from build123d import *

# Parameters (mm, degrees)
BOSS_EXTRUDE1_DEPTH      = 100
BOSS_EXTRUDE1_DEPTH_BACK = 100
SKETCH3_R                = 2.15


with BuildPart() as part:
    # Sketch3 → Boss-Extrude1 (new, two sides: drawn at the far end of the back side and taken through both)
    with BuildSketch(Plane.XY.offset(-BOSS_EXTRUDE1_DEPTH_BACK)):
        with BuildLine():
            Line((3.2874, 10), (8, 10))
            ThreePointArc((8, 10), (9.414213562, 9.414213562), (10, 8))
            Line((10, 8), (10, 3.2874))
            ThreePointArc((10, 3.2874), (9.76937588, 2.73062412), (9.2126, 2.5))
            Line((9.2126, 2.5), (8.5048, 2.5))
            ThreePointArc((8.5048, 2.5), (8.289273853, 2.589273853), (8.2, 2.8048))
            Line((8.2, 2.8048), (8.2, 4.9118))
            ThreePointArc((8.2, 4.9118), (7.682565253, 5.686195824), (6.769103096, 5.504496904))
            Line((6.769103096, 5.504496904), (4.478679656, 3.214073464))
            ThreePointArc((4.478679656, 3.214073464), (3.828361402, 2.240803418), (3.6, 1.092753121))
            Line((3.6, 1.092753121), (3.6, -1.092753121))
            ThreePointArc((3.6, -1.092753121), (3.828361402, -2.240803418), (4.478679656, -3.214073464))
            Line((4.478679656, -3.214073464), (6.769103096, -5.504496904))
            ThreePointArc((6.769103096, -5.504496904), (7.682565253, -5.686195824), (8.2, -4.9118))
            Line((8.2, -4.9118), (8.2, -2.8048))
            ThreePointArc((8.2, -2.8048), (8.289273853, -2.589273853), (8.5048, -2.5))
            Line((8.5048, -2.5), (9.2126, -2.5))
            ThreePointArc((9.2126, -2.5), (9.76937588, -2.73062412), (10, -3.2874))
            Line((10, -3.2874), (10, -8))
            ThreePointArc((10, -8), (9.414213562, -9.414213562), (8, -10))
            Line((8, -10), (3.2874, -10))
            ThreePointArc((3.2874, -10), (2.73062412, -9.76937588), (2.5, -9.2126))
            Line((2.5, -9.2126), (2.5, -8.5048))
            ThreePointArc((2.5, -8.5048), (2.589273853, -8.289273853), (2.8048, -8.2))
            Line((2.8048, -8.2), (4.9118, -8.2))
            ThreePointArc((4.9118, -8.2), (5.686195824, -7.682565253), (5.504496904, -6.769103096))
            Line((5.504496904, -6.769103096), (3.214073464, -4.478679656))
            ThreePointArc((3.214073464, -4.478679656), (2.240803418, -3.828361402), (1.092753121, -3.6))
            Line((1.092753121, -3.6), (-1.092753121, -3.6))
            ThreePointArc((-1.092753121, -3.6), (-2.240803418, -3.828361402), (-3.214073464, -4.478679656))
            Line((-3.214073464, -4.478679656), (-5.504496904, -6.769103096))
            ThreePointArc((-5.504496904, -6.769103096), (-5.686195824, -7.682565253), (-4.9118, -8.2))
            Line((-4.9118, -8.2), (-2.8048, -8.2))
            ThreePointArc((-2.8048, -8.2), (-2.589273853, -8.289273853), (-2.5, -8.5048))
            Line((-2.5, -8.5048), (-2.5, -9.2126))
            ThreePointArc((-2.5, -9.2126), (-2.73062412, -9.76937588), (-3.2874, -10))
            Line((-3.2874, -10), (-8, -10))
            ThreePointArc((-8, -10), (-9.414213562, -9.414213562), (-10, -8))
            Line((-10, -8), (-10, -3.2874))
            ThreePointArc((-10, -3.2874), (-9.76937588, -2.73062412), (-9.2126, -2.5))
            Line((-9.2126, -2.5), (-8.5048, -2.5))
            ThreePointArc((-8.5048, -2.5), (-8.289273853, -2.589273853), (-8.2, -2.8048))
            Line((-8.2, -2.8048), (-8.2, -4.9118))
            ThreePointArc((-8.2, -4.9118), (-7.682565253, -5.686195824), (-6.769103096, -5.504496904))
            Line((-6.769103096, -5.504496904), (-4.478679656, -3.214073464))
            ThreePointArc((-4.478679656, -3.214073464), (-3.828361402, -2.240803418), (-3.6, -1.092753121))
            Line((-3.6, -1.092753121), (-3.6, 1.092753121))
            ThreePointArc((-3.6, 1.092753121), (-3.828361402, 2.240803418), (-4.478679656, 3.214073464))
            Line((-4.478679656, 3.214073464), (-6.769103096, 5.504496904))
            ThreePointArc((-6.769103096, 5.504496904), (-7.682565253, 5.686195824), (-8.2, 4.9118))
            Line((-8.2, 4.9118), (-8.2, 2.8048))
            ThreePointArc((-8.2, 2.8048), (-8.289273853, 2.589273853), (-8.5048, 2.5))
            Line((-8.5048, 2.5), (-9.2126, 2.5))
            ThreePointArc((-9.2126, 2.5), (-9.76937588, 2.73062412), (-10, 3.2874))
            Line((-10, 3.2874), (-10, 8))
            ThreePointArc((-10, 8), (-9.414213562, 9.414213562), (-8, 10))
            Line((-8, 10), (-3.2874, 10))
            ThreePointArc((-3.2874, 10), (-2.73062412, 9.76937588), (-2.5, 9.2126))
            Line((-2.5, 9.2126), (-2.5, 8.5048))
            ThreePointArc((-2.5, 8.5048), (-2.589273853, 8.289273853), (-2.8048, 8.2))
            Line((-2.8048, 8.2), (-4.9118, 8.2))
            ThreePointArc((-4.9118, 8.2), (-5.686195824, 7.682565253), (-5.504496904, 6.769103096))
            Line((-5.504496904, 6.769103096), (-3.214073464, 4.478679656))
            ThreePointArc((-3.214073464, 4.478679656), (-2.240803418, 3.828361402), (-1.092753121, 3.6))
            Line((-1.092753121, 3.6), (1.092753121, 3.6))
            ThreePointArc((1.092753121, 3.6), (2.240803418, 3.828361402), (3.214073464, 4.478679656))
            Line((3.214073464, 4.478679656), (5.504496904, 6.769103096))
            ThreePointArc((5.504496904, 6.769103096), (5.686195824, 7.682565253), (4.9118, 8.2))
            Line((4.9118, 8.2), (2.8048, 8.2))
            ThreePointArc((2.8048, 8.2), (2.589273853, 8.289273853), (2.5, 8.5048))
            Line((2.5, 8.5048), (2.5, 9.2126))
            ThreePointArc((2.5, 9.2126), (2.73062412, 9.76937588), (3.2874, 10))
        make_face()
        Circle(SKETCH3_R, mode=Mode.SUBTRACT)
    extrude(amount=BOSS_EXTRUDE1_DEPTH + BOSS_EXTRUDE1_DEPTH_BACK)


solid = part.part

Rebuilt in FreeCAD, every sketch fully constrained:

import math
import FreeCAD as App
import Part
import Sketcher
from FreeCAD import Vector

doc = App.newDocument("Part")
body = doc.addObject("PartDesign::Body", "Body")

# Sketch on XY plane
sketch1 = doc.addObject("Sketcher::SketchObject", "Sketch")
body.addObject(sketch1)
sketch1.AttachmentSupport = (doc.XY_Plane, [""])
sketch1.MapMode = "FlatFace"
sketch1.addGeometry(Part.LineSegment(Vector(8, 10, 0), Vector(3.29, 10, 0)), False)
sketch1.addGeometry(Part.ArcOfCircle(Part.Circle(Vector(3.29, 9.21, 0), Vector(0, 0, 1), 0.79), math.radians(90), math.radians(180)), False)
sketch1.addGeometry(Part.LineSegment(Vector(2.5, 9.21, 0), Vector(2.5, 8.5, 0)), False)
sketch1.addGeometry(Part.ArcOfCircle(Part.Circle(Vector(2.8, 8.5, 0), Vector(0, 0, 1), 0.3), math.radians(180), math.radians(270)), False)
sketch1.addGeometry(Part.LineSegment(Vector(2.8, 8.2, 0), Vector(4.91, 8.2, 0)), False)
sketch1.addGeometry(Part.ArcOfCircle(Part.Circle(Vector(4.91, 7.36, 0), Vector(0, 0, 1), 0.84), math.radians(-45), math.radians(90)), False)
sketch1.addGeometry(Part.LineSegment(Vector(5.5, 6.77, 0), Vector(3.21, 4.48, 0)), False)
sketch1.addGeometry(Part.ArcOfCircle(Part.Circle(Vector(1.09, 6.6, 0), Vector(0, 0, 1), 3), math.radians(-90), math.radians(-45)), False)
sketch1.addGeometry(Part.LineSegment(Vector(1.09, 3.6, 0), Vector(-1.09, 3.6, 0)), False)
sketch1.addGeometry(Part.ArcOfCircle(Part.Circle(Vector(-1.09, 6.6, 0), Vector(0, 0, 1), 3), math.radians(-135), math.radians(-90)), False)
sketch1.addGeometry(Part.LineSegment(Vector(-3.21, 4.48, 0), Vector(-5.5, 6.77, 0)), False)
sketch1.addGeometry(Part.ArcOfCircle(Part.Circle(Vector(-4.91, 7.36, 0), Vector(0, 0, 1), 0.84), math.radians(90), math.radians(225)), False)
sketch1.addGeometry(Part.LineSegment(Vector(-4.91, 8.2, 0), Vector(-2.8, 8.2, 0)), False)
sketch1.addGeometry(Part.ArcOfCircle(Part.Circle(Vector(-2.8, 8.5, 0), Vector(0, 0, 1), 0.3), math.radians(-90), math.radians(0)), False)
sketch1.addGeometry(Part.LineSegment(Vector(-2.5, 8.5, 0), Vector(-2.5, 9.21, 0)), False)
sketch1.addGeometry(Part.ArcOfCircle(Part.Circle(Vector(-3.29, 9.21, 0), Vector(0, 0, 1), 0.79), math.radians(0), math.radians(90)), False)
sketch1.addGeometry(Part.LineSegment(Vector(-3.29, 10, 0), Vector(-8, 10, 0)), False)
sketch1.addGeometry(Part.ArcOfCircle(Part.Circle(Vector(-8, 8, 0), Vector(0, 0, 1), 2), math.radians(90), math.radians(180)), False)
sketch1.addGeometry(Part.LineSegment(Vector(-10, 8, 0), Vector(-10, 3.29, 0)), False)
sketch1.addGeometry(Part.ArcOfCircle(Part.Circle(Vector(-9.21, 3.29, 0), Vector(0, 0, 1), 0.79), math.radians(180), math.radians(270)), False)
sketch1.addGeometry(Part.LineSegment(Vector(-9.21, 2.5, 0), Vector(-8.5, 2.5, 0)), False)
sketch1.addGeometry(Part.ArcOfCircle(Part.Circle(Vector(-8.5, 2.8, 0), Vector(0, 0, 1), 0.3), math.radians(-90), math.radians(0)), False)
sketch1.addGeometry(Part.LineSegment(Vector(-8.2, 2.8, 0), Vector(-8.2, 4.91, 0)), False)
sketch1.addGeometry(Part.ArcOfCircle(Part.Circle(Vector(-7.36, 4.91, 0), Vector(0, 0, 1), 0.84), math.radians(45), math.radians(180)), False)
sketch1.addGeometry(Part.LineSegment(Vector(-6.77, 5.5, 0), Vector(-4.48, 3.21, 0)), False)
sketch1.addGeometry(Part.ArcOfCircle(Part.Circle(Vector(-6.6, 1.09, 0), Vector(0, 0, 1), 3), math.radians(0), math.radians(45)), False)
sketch1.addGeometry(Part.LineSegment(Vector(-3.6, 1.09, 0), Vector(-3.6, -1.09, 0)), False)
sketch1.addGeometry(Part.ArcOfCircle(Part.Circle(Vector(-6.6, -1.09, 0), Vector(0, 0, 1), 3), math.radians(-45), math.radians(0)), False)
sketch1.addGeometry(Part.LineSegment(Vector(-4.48, -3.21, 0), Vector(-6.77, -5.5, 0)), False)
sketch1.addGeometry(Part.ArcOfCircle(Part.Circle(Vector(-7.36, -4.91, 0), Vector(0, 0, 1), 0.84), math.radians(180), math.radians(315)), False)
sketch1.addGeometry(Part.LineSegment(Vector(-8.2, -4.91, 0), Vector(-8.2, -2.8, 0)), False)
sketch1.addGeometry(Part.ArcOfCircle(Part.Circle(Vector(-8.5, -2.8, 0), Vector(0, 0, 1), 0.3), math.radians(0), math.radians(90)), False)
sketch1.addGeometry(Part.LineSegment(Vector(-8.5, -2.5, 0), Vector(-9.21, -2.5, 0)), False)
sketch1.addGeometry(Part.ArcOfCircle(Part.Circle(Vector(-9.21, -3.29, 0), Vector(0, 0, 1), 0.79), math.radians(90), math.radians(180)), False)
sketch1.addGeometry(Part.LineSegment(Vector(-10, -3.29, 0), Vector(-10, -8, 0)), False)
sketch1.addGeometry(Part.ArcOfCircle(Part.Circle(Vector(-8, -8, 0), Vector(0, 0, 1), 2), math.radians(-180), math.radians(-90)), False)
sketch1.addGeometry(Part.LineSegment(Vector(-8, -10, 0), Vector(-3.29, -10, 0)), False)
sketch1.addGeometry(Part.ArcOfCircle(Part.Circle(Vector(-3.29, -9.21, 0), Vector(0, 0, 1), 0.79), math.radians(-90), math.radians(0)), False)
sketch1.addGeometry(Part.LineSegment(Vector(-2.5, -9.21, 0), Vector(-2.5, -8.5, 0)), False)
sketch1.addGeometry(Part.ArcOfCircle(Part.Circle(Vector(-2.8, -8.5, 0), Vector(0, 0, 1), 0.3), math.radians(0), math.radians(90)), False)
sketch1.addGeometry(Part.LineSegment(Vector(-2.8, -8.2, 0), Vector(-4.91, -8.2, 0)), False)
sketch1.addGeometry(Part.ArcOfCircle(Part.Circle(Vector(-4.91, -7.36, 0), Vector(0, 0, 1), 0.84), math.radians(135), math.radians(270)), False)
sketch1.addGeometry(Part.LineSegment(Vector(-5.5, -6.77, 0), Vector(-3.21, -4.48, 0)), False)
sketch1.addGeometry(Part.ArcOfCircle(Part.Circle(Vector(-1.09, -6.6, 0), Vector(0, 0, 1), 3), math.radians(90), math.radians(135)), False)
sketch1.addGeometry(Part.LineSegment(Vector(-1.09, -3.6, 0), Vector(1.09, -3.6, 0)), False)
sketch1.addGeometry(Part.ArcOfCircle(Part.Circle(Vector(1.09, -6.6, 0), Vector(0, 0, 1), 3), math.radians(45), math.radians(90)), False)
sketch1.addGeometry(Part.LineSegment(Vector(3.21, -4.48, 0), Vector(5.5, -6.77, 0)), False)
sketch1.addGeometry(Part.ArcOfCircle(Part.Circle(Vector(4.91, -7.36, 0), Vector(0, 0, 1), 0.84), math.radians(-90), math.radians(45)), False)
sketch1.addGeometry(Part.LineSegment(Vector(4.91, -8.2, 0), Vector(2.8, -8.2, 0)), False)
sketch1.addGeometry(Part.ArcOfCircle(Part.Circle(Vector(2.8, -8.5, 0), Vector(0, 0, 1), 0.3), math.radians(90), math.radians(180)), False)
sketch1.addGeometry(Part.LineSegment(Vector(2.5, -8.5, 0), Vector(2.5, -9.21, 0)), False)
sketch1.addGeometry(Part.ArcOfCircle(Part.Circle(Vector(3.29, -9.21, 0), Vector(0, 0, 1), 0.79), math.radians(180), math.radians(270)), False)
sketch1.addGeometry(Part.LineSegment(Vector(3.29, -10, 0), Vector(8, -10, 0)), False)
sketch1.addGeometry(Part.ArcOfCircle(Part.Circle(Vector(8, -8, 0), Vector(0, 0, 1), 2), math.radians(-90), math.radians(0)), False)
sketch1.addGeometry(Part.LineSegment(Vector(10, -8, 0), Vector(10, -3.29, 0)), False)
sketch1.addGeometry(Part.ArcOfCircle(Part.Circle(Vector(9.21, -3.29, 0), Vector(0, 0, 1), 0.79), math.radians(0), math.radians(90)), False)
sketch1.addGeometry(Part.LineSegment(Vector(9.21, -2.5, 0), Vector(8.5, -2.5, 0)), False)
sketch1.addGeometry(Part.ArcOfCircle(Part.Circle(Vector(8.5, -2.8, 0), Vector(0, 0, 1), 0.3), math.radians(90), math.radians(180)), False)
sketch1.addGeometry(Part.LineSegment(Vector(8.2, -2.8, 0), Vector(8.2, -4.91, 0)), False)
sketch1.addGeometry(Part.ArcOfCircle(Part.Circle(Vector(7.36, -4.91, 0), Vector(0, 0, 1), 0.84), math.radians(-135), math.radians(0)), False)
sketch1.addGeometry(Part.LineSegment(Vector(6.77, -5.5, 0), Vector(4.48, -3.21, 0)), False)
sketch1.addGeometry(Part.ArcOfCircle(Part.Circle(Vector(6.6, -1.09, 0), Vector(0, 0, 1), 3), math.radians(180), math.radians(225)), False)
sketch1.addGeometry(Part.LineSegment(Vector(3.6, -1.09, 0), Vector(3.6, 1.09, 0)), False)
sketch1.addGeometry(Part.ArcOfCircle(Part.Circle(Vector(6.6, 1.09, 0), Vector(0, 0, 1), 3), math.radians(135), math.radians(180)), False)
sketch1.addGeometry(Part.LineSegment(Vector(4.48, 3.21, 0), Vector(6.77, 5.5, 0)), False)
sketch1.addGeometry(Part.ArcOfCircle(Part.Circle(Vector(7.36, 4.91, 0), Vector(0, 0, 1), 0.84), math.radians(0), math.radians(135)), False)
sketch1.addGeometry(Part.LineSegment(Vector(8.2, 4.91, 0), Vector(8.2, 2.8, 0)), False)
sketch1.addGeometry(Part.ArcOfCircle(Part.Circle(Vector(8.5, 2.8, 0), Vector(0, 0, 1), 0.3), math.radians(180), math.radians(270)), False)
sketch1.addGeometry(Part.LineSegment(Vector(8.5, 2.5, 0), Vector(9.21, 2.5, 0)), False)
sketch1.addGeometry(Part.ArcOfCircle(Part.Circle(Vector(9.21, 3.29, 0), Vector(0, 0, 1), 0.79), math.radians(-90), math.radians(0)), False)
sketch1.addGeometry(Part.LineSegment(Vector(10, 3.29, 0), Vector(10, 8, 0)), False)
sketch1.addGeometry(Part.ArcOfCircle(Part.Circle(Vector(8, 8, 0), Vector(0, 0, 1), 2), math.radians(0), math.radians(90)), False)
sketch1.addGeometry(Part.Circle(Vector(0, 0, 0), Vector(0, 0, 1), 2.15), False)
sketch1.addConstraint(Sketcher.Constraint("Tangent", 0, 2, 1, 1))
sketch1.addConstraint(Sketcher.Constraint("Tangent", 1, 2, 2, 1))
sketch1.addConstraint(Sketcher.Constraint("Tangent", 2, 2, 3, 1))
sketch1.addConstraint(Sketcher.Constraint("Tangent", 3, 2, 4, 1))
sketch1.addConstraint(Sketcher.Constraint("Tangent", 4, 2, 5, 2))
sketch1.addConstraint(Sketcher.Constraint("Tangent", 5, 1, 6, 1))
sketch1.addConstraint(Sketcher.Constraint("Tangent", 6, 2, 7, 2))
sketch1.addConstraint(Sketcher.Constraint("Tangent", 7, 1, 8, 1))
sketch1.addConstraint(Sketcher.Constraint("Tangent", 8, 2, 9, 2))
sketch1.addConstraint(Sketcher.Constraint("Tangent", 9, 1, 10, 1))
sketch1.addConstraint(Sketcher.Constraint("Tangent", 10, 2, 11, 2))
sketch1.addConstraint(Sketcher.Constraint("Tangent", 11, 1, 12, 1))
sketch1.addConstraint(Sketcher.Constraint("Tangent", 12, 2, 13, 1))
sketch1.addConstraint(Sketcher.Constraint("Tangent", 13, 2, 14, 1))
sketch1.addConstraint(Sketcher.Constraint("Tangent", 14, 2, 15, 1))
sketch1.addConstraint(Sketcher.Constraint("Tangent", 15, 2, 16, 1))
sketch1.addConstraint(Sketcher.Constraint("Tangent", 16, 2, 17, 1))
sketch1.addConstraint(Sketcher.Constraint("Tangent", 17, 2, 18, 1))
sketch1.addConstraint(Sketcher.Constraint("Tangent", 18, 2, 19, 1))
sketch1.addConstraint(Sketcher.Constraint("Tangent", 19, 2, 20, 1))
sketch1.addConstraint(Sketcher.Constraint("Tangent", 20, 2, 21, 1))
sketch1.addConstraint(Sketcher.Constraint("Tangent", 21, 2, 22, 1))
sketch1.addConstraint(Sketcher.Constraint("Tangent", 22, 2, 23, 2))
sketch1.addConstraint(Sketcher.Constraint("Tangent", 23, 1, 24, 1))
sketch1.addConstraint(Sketcher.Constraint("Tangent", 24, 2, 25, 2))
sketch1.addConstraint(Sketcher.Constraint("Tangent", 25, 1, 26, 1))
sketch1.addConstraint(Sketcher.Constraint("Tangent", 26, 2, 27, 2))
sketch1.addConstraint(Sketcher.Constraint("Tangent", 27, 1, 28, 1))
sketch1.addConstraint(Sketcher.Constraint("Tangent", 28, 2, 29, 2))
sketch1.addConstraint(Sketcher.Constraint("Tangent", 29, 1, 30, 1))
sketch1.addConstraint(Sketcher.Constraint("Tangent", 30, 2, 31, 1))
sketch1.addConstraint(Sketcher.Constraint("Tangent", 31, 2, 32, 1))
sketch1.addConstraint(Sketcher.Constraint("Tangent", 32, 2, 33, 1))
sketch1.addConstraint(Sketcher.Constraint("Tangent", 33, 2, 34, 1))
sketch1.addConstraint(Sketcher.Constraint("Tangent", 34, 2, 35, 1))
sketch1.addConstraint(Sketcher.Constraint("Tangent", 35, 2, 36, 1))
sketch1.addConstraint(Sketcher.Constraint("Tangent", 36, 2, 37, 1))
sketch1.addConstraint(Sketcher.Constraint("Tangent", 37, 2, 38, 1))
sketch1.addConstraint(Sketcher.Constraint("Tangent", 38, 2, 39, 1))
sketch1.addConstraint(Sketcher.Constraint("Tangent", 39, 2, 40, 1))
sketch1.addConstraint(Sketcher.Constraint("Tangent", 40, 2, 41, 2))
sketch1.addConstraint(Sketcher.Constraint("Tangent", 41, 1, 42, 1))
sketch1.addConstraint(Sketcher.Constraint("Tangent", 42, 2, 43, 2))
sketch1.addConstraint(Sketcher.Constraint("Tangent", 43, 1, 44, 1))
sketch1.addConstraint(Sketcher.Constraint("Tangent", 44, 2, 45, 2))
sketch1.addConstraint(Sketcher.Constraint("Tangent", 45, 1, 46, 1))
sketch1.addConstraint(Sketcher.Constraint("Tangent", 46, 2, 47, 2))
sketch1.addConstraint(Sketcher.Constraint("Tangent", 47, 1, 48, 1))
sketch1.addConstraint(Sketcher.Constraint("Tangent", 48, 2, 49, 1))
sketch1.addConstraint(Sketcher.Constraint("Tangent", 49, 2, 50, 1))
sketch1.addConstraint(Sketcher.Constraint("Tangent", 50, 2, 51, 1))
sketch1.addConstraint(Sketcher.Constraint("Tangent", 51, 2, 52, 1))
sketch1.addConstraint(Sketcher.Constraint("Tangent", 52, 2, 53, 1))
sketch1.addConstraint(Sketcher.Constraint("Tangent", 53, 2, 54, 1))
sketch1.addConstraint(Sketcher.Constraint("Tangent", 54, 2, 55, 1))
sketch1.addConstraint(Sketcher.Constraint("Tangent", 55, 2, 56, 1))
sketch1.addConstraint(Sketcher.Constraint("Tangent", 56, 2, 57, 1))
sketch1.addConstraint(Sketcher.Constraint("Tangent", 57, 2, 58, 1))
sketch1.addConstraint(Sketcher.Constraint("Tangent", 58, 2, 59, 2))
sketch1.addConstraint(Sketcher.Constraint("Tangent", 59, 1, 60, 1))
sketch1.addConstraint(Sketcher.Constraint("Tangent", 60, 2, 61, 2))
sketch1.addConstraint(Sketcher.Constraint("Tangent", 61, 1, 62, 1))
sketch1.addConstraint(Sketcher.Constraint("Tangent", 62, 2, 63, 2))
sketch1.addConstraint(Sketcher.Constraint("Tangent", 63, 1, 64, 1))
sketch1.addConstraint(Sketcher.Constraint("Tangent", 64, 2, 65, 2))
sketch1.addConstraint(Sketcher.Constraint("Tangent", 65, 1, 66, 1))
sketch1.addConstraint(Sketcher.Constraint("Tangent", 66, 2, 67, 1))
sketch1.addConstraint(Sketcher.Constraint("Tangent", 67, 2, 68, 1))
sketch1.addConstraint(Sketcher.Constraint("Tangent", 68, 2, 69, 1))
sketch1.addConstraint(Sketcher.Constraint("Tangent", 69, 2, 70, 1))
sketch1.addConstraint(Sketcher.Constraint("Tangent", 70, 2, 71, 1))
sketch1.addConstraint(Sketcher.Constraint("Tangent", 71, 2, 0, 1))
sketch1.addConstraint(Sketcher.Constraint("Horizontal", 0))
sketch1.addConstraint(Sketcher.Constraint("Vertical", 2))
sketch1.addConstraint(Sketcher.Constraint("Horizontal", 4))
sketch1.addConstraint(Sketcher.Constraint("Horizontal", 8))
sketch1.addConstraint(Sketcher.Constraint("Horizontal", 12))
sketch1.addConstraint(Sketcher.Constraint("Vertical", 14))
sketch1.addConstraint(Sketcher.Constraint("Horizontal", 16))
sketch1.addConstraint(Sketcher.Constraint("Vertical", 18))
sketch1.addConstraint(Sketcher.Constraint("Horizontal", 20))
sketch1.addConstraint(Sketcher.Constraint("Vertical", 22))
sketch1.addConstraint(Sketcher.Constraint("Vertical", 26))
sketch1.addConstraint(Sketcher.Constraint("Vertical", 30))
sketch1.addConstraint(Sketcher.Constraint("Horizontal", 32))
sketch1.addConstraint(Sketcher.Constraint("Vertical", 34))
sketch1.addConstraint(Sketcher.Constraint("Horizontal", 36))
sketch1.addConstraint(Sketcher.Constraint("Vertical", 38))
sketch1.addConstraint(Sketcher.Constraint("Horizontal", 40))
sketch1.addConstraint(Sketcher.Constraint("Horizontal", 44))
sketch1.addConstraint(Sketcher.Constraint("Horizontal", 48))
sketch1.addConstraint(Sketcher.Constraint("Vertical", 50))
sketch1.addConstraint(Sketcher.Constraint("Horizontal", 52))
sketch1.addConstraint(Sketcher.Constraint("Vertical", 54))
sketch1.addConstraint(Sketcher.Constraint("Horizontal", 56))
sketch1.addConstraint(Sketcher.Constraint("Vertical", 58))
sketch1.addConstraint(Sketcher.Constraint("Vertical", 62))
sketch1.addConstraint(Sketcher.Constraint("Vertical", 66))
sketch1.addConstraint(Sketcher.Constraint("Horizontal", 68))
sketch1.addConstraint(Sketcher.Constraint("Vertical", 70))
sketch1.addConstraint(Sketcher.Constraint("Coincident", 72, 3, -1, 1))
sketch1.addConstraint(Sketcher.Constraint("Equal", 7, 9))
sketch1.addConstraint(Sketcher.Constraint("Equal", 5, 11))
sketch1.addConstraint(Sketcher.Constraint("Equal", 3, 13))
sketch1.addConstraint(Sketcher.Constraint("Equal", 1, 15))
sketch1.addConstraint(Sketcher.Constraint("Equal", 15, 19))
sketch1.addConstraint(Sketcher.Constraint("Equal", 13, 21))
sketch1.addConstraint(Sketcher.Constraint("Equal", 11, 23))
sketch1.addConstraint(Sketcher.Constraint("Equal", 9, 25))
sketch1.addConstraint(Sketcher.Constraint("Equal", 25, 27))
sketch1.addConstraint(Sketcher.Constraint("Equal", 23, 29))
sketch1.addConstraint(Sketcher.Constraint("Equal", 21, 31))
sketch1.addConstraint(Sketcher.Constraint("Equal", 19, 33))
sketch1.addConstraint(Sketcher.Constraint("Equal", 17, 35))
sketch1.addConstraint(Sketcher.Constraint("Equal", 33, 37))
sketch1.addConstraint(Sketcher.Constraint("Equal", 31, 39))
sketch1.addConstraint(Sketcher.Constraint("Equal", 29, 41))
sketch1.addConstraint(Sketcher.Constraint("Equal", 27, 43))
sketch1.addConstraint(Sketcher.Constraint("Equal", 43, 45))
sketch1.addConstraint(Sketcher.Constraint("Equal", 41, 47))
sketch1.addConstraint(Sketcher.Constraint("Equal", 39, 49))
sketch1.addConstraint(Sketcher.Constraint("Equal", 37, 51))
sketch1.addConstraint(Sketcher.Constraint("Equal", 35, 53))
sketch1.addConstraint(Sketcher.Constraint("Equal", 51, 55))
sketch1.addConstraint(Sketcher.Constraint("Equal", 49, 57))
sketch1.addConstraint(Sketcher.Constraint("Equal", 47, 59))
sketch1.addConstraint(Sketcher.Constraint("Equal", 45, 61))
sketch1.addConstraint(Sketcher.Constraint("Equal", 61, 63))
sketch1.addConstraint(Sketcher.Constraint("Equal", 59, 65))
sketch1.addConstraint(Sketcher.Constraint("Equal", 57, 67))
sketch1.addConstraint(Sketcher.Constraint("Equal", 55, 69))
sketch1.addConstraint(Sketcher.Constraint("Equal", 53, 71))
sketch1.addConstraint(Sketcher.Constraint("Symmetric", 1, 3, 37, 3, -1, 1))
sketch1.addConstraint(Sketcher.Constraint("Symmetric", 5, 3, 41, 3, -1, 1))
sketch1.addConstraint(Sketcher.Constraint("Symmetric", 7, 3, 43, 3, -1, 1))
sketch1.addConstraint(Sketcher.Constraint("Symmetric", 11, 3, 47, 3, -1, 1))
sketch1.addConstraint(Sketcher.Constraint("Symmetric", 15, 3, 51, 3, -1, 1))
sketch1.addConstraint(Sketcher.Constraint("Symmetric", 19, 3, 55, 3, -1, 1))
sketch1.addConstraint(Sketcher.Constraint("Symmetric", 23, 3, 59, 3, -1, 1))
sketch1.addConstraint(Sketcher.Constraint("Symmetric", 25, 3, 61, 3, -1, 1))
sketch1.addConstraint(Sketcher.Constraint("Symmetric", 29, 3, 65, 3, -1, 1))
sketch1.addConstraint(Sketcher.Constraint("Symmetric", 33, 3, 69, 3, -1, 1))
sketch1.addConstraint(Sketcher.Constraint("Symmetric", 5, 3, 11, 3, -2))
sketch1.addConstraint(Sketcher.Constraint("Symmetric", 1, 3, 15, 3, -2))
sketch1.addConstraint(Sketcher.Constraint("Symmetric", 33, 3, 55, 3, -2))
sketch1.addConstraint(Sketcher.Constraint("Symmetric", 29, 3, 59, 3, -2))
sketch1.addConstraint(Sketcher.Constraint("Perpendicular", 6, 10))
sketch1.addConstraint(Sketcher.Constraint("Parallel", 10, 24))
sketch1.addConstraint(Sketcher.Constraint("Perpendicular", 24, 28))
sketch1.addConstraint(Sketcher.Constraint("Perpendicular", 42, 46))
sketch1.addConstraint(Sketcher.Constraint("Perpendicular", 60, 64))
sketch1.addConstraint(Sketcher.Constraint("Horizontal", 27, 3, 61, 3))
sketch1.addConstraint(Sketcher.Constraint("Equal", 68, 2))
sketch1.addConstraint(Sketcher.Constraint("Equal", 52, 18))
sketch1.addConstraint(Sketcher.Constraint("Equal", 48, 22))
sketch1.addConstraint(Sketcher.Constraint("Equal", 44, 26))
sketch1.addConstraint(Sketcher.Constraint("Equal", 10, 24))
sketch1.addConstraint(Sketcher.Constraint("Radius", 7, 3.0))
sketch1.addConstraint(Sketcher.Constraint("Radius", 17, 2.0))
sketch1.addConstraint(Sketcher.Constraint("Diameter", 72, 4.3))
sketch1.addConstraint(Sketcher.Constraint("DistanceX", 17, 3, -1, 1, 8.0))
sketch1.addConstraint(Sketcher.Constraint("DistanceY", -1, 1, 7, 3, 6.6))
sketch1.addConstraint(Sketcher.Constraint("DistanceX", -1, 1, 1, 2, 2.5))
sketch1.addConstraint(Sketcher.Constraint("DistanceY", -1, 1, 3, 2, 8.2))
sketch1.addConstraint(Sketcher.Constraint("Radius", 1, 0.7874))
sketch1.addConstraint(Sketcher.Constraint("Radius", 3, 0.3048))
sketch1.addConstraint(Sketcher.Constraint("Radius", 5, 0.8382))
sketch1.addConstraint(Sketcher.Constraint("DistanceX", 4, 1, 4, 2, 2.107))
pad1 = doc.addObject("PartDesign::Pad", "Pad")
body.addObject(pad1)
pad1.Profile = sketch1
pad1.Type = "TwoLengths"
pad1.Length = 100
pad1.Length2 = 100

doc.recompute()
